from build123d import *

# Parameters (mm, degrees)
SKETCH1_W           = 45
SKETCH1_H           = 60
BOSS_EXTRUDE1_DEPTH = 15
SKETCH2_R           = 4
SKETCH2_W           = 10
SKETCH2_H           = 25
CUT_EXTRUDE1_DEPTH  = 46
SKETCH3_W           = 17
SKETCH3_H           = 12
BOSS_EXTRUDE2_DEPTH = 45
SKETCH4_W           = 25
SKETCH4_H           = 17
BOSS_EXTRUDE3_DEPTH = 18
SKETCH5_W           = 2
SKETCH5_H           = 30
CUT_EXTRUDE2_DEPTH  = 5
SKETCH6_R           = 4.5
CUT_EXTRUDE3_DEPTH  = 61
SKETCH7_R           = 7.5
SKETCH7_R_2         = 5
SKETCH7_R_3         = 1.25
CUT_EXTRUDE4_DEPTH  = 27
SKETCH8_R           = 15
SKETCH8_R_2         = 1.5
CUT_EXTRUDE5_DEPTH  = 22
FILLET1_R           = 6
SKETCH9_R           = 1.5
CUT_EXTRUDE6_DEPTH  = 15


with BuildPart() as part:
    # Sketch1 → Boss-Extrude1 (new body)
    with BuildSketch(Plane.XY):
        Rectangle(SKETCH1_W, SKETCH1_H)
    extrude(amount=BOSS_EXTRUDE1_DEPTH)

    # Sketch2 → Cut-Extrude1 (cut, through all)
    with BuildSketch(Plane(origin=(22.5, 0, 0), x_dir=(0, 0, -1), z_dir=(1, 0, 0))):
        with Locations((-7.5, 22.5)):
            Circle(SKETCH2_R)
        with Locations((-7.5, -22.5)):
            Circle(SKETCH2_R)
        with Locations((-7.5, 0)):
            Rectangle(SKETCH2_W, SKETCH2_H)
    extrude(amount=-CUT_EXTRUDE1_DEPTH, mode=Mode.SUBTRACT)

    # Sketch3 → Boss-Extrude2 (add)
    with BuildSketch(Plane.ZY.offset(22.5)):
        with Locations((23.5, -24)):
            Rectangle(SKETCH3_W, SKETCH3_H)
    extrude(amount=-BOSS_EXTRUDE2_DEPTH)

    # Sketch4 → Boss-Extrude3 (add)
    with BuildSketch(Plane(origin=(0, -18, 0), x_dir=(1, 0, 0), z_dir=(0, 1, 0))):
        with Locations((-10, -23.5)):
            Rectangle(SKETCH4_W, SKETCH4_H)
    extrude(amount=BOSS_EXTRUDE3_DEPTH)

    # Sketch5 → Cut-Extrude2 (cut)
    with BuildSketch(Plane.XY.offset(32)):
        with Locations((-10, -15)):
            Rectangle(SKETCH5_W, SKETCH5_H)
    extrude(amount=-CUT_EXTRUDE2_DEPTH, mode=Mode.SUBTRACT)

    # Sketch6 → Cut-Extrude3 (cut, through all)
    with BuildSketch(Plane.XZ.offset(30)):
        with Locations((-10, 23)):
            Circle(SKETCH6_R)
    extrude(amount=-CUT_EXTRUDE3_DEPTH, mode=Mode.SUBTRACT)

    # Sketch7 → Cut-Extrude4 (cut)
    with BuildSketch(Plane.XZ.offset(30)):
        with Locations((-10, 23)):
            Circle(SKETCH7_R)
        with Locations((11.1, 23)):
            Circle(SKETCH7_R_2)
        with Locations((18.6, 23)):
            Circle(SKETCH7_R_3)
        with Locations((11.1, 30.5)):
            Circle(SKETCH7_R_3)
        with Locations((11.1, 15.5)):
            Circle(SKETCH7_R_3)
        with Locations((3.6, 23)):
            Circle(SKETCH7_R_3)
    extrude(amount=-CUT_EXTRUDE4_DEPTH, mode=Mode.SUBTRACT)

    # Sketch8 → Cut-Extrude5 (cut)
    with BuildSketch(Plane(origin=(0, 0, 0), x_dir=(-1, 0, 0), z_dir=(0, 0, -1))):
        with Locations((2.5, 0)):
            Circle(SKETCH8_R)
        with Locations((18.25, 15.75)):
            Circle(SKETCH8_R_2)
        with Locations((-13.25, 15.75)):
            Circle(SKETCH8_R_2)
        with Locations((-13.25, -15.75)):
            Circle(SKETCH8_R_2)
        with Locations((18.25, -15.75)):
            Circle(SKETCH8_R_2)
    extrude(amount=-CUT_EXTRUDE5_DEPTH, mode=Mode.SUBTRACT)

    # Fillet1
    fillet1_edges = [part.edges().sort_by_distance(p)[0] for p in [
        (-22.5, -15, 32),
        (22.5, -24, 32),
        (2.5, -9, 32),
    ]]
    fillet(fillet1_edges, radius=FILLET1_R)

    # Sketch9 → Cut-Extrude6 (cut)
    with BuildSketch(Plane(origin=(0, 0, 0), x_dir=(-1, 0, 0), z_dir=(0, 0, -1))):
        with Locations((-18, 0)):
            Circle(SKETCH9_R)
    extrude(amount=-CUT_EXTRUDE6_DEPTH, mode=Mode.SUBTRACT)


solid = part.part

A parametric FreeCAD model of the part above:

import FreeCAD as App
import Part
import Sketcher
Q = App.Units.Quantity


def edges_at(feature, points):
    """Names of the edges that pass closest to the given points."""
    edges = feature.Shape.Edges
    near = lambda p: min(range(len(edges)), key=lambda i: edges[i].distToShape(Part.Vertex(*p))[0])
    return sorted({f"Edge{near(p) + 1}" for p in points})

doc = App.newDocument("Part")
body = doc.addObject("PartDesign::Body", "Body")

sketch1 = body.newObject("Sketcher::SketchObject", "Sketch")
sketch1.AttachmentSupport = (doc.getObject("XY_Plane"), [""])
sketch1.MapMode = "FlatFace"
sketch1.addGeometry(Part.LineSegment(App.Vector(-22.5, 30, 0), App.Vector(-22.5, -30, 0)), False)
sketch1.addGeometry(Part.LineSegment(App.Vector(-22.5, -30, 0), App.Vector(22.5, -30, 0)), False)
sketch1.addGeometry(Part.LineSegment(App.Vector(22.5, -30, 0), App.Vector(22.5, 30, 0)), False)
sketch1.addGeometry(Part.LineSegment(App.Vector(22.5, 30, 0), App.Vector(-22.5, 30, 0)), False)
sketch1.addConstraint(Sketcher.Constraint("Coincident", 0, 2, 1, 1))
sketch1.addConstraint(Sketcher.Constraint("Coincident", 1, 2, 2, 1))
sketch1.addConstraint(Sketcher.Constraint("Coincident", 2, 2, 3, 1))
sketch1.addConstraint(Sketcher.Constraint("Coincident", 3, 2, 0, 1))
sketch1.addConstraint(Sketcher.Constraint("Vertical", 0))
sketch1.addConstraint(Sketcher.Constraint("Horizontal", 1))
sketch1.addConstraint(Sketcher.Constraint("Vertical", 2))
sketch1.addConstraint(Sketcher.Constraint("Horizontal", 3))
sketch1.addConstraint(Sketcher.Constraint("Symmetric", 0, 2, 2, 2, -1, 1))
sketch1.addConstraint(Sketcher.Constraint("DistanceX", 1, 1, 1, 2, Q("45 mm")))
sketch1.addConstraint(Sketcher.Constraint("DistanceY", 0, 2, 0, 1, Q("60 mm")))
pad1 = body.newObject("PartDesign::Pad", "Pad")
pad1.Profile = sketch1
pad1.Length = 15

sketch2 = body.newObject("Sketcher::SketchObject", "Sketch001")
sketch2.AttachmentSupport = (doc.getObject("YZ_Plane"), [""])
sketch2.MapMode = "FlatFace"
sketch2.AttachmentOffset = App.Placement(App.Vector(0, 0, 22.5), App.Rotation())
sketch2.addGeometry(Part.Circle(App.Vector(22.5, 7.5, 0), App.Vector(0, 0, 1), 4), False)
sketch2.addGeometry(Part.Circle(App.Vector(-22.5, 7.5, 0), App.Vector(0, 0, 1), 4), False)
sketch2.addGeometry(Part.LineSegment(App.Vector(12.5, 12.5, 0), App.Vector(-12.5, 12.5, 0)), False)
sketch2.addGeometry(Part.LineSegment(App.Vector(-12.5, 12.5, 0), App.Vector(-12.5, 2.5, 0)), False)
sketch2.addGeometry(Part.LineSegment(App.Vector(-12.5, 2.5, 0), App.Vector(12.5, 2.5, 0)), False)
sketch2.addGeometry(Part.LineSegment(App.Vector(12.5, 2.5, 0), App.Vector(12.5, 12.5, 0)), False)
sketch2.addConstraint(Sketcher.Constraint("Coincident", 2, 2, 3, 1))
sketch2.addConstraint(Sketcher.Constraint("Coincident", 3, 2, 4, 1))
sketch2.addConstraint(Sketcher.Constraint("Coincident", 4, 2, 5, 1))
sketch2.addConstraint(Sketcher.Constraint("Coincident", 5, 2, 2, 1))
sketch2.addConstraint(Sketcher.Constraint("Horizontal", 2))
sketch2.addConstraint(Sketcher.Constraint("Vertical", 3))
sketch2.addConstraint(Sketcher.Constraint("Horizontal", 4))
sketch2.addConstraint(Sketcher.Constraint("Vertical", 5))
sketch2.addConstraint(Sketcher.Constraint("Equal", 0, 1))
sketch2.addConstraint(Sketcher.Constraint("Symmetric", 0, 3, 1, 3, -2))
sketch2.addConstraint(Sketcher.Constraint("Diameter", 0, Q("8 mm")))
sketch2.addConstraint(Sketcher.Constraint("DistanceX", 2, 2, 2, 1, Q("25 mm")))
sketch2.addConstraint(Sketcher.Constraint("DistanceY", 3, 2, 3, 1, Q("10 mm")))
sketch2.addConstraint(Sketcher.Constraint("DistanceX", 1, 3, 0, 3, Q("45 mm")))
sketch2.addConstraint(Sketcher.Constraint("DistanceX", 1, 3, 2, 2, Q("10 mm")))
sketch2.addConstraint(Sketcher.Constraint("DistanceY", 1, 3, 2, 2, Q("5 mm")))
sketch2.addConstraint(Sketcher.Constraint("DistanceY", -1, 1, 0, 3, Q("7.5 mm")))
pocket1 = body.newObject("PartDesign::Pocket", "Pocket")
pocket1.Profile = sketch2
pocket1.Type = "ThroughAll"

sketch3 = body.newObject("Sketcher::SketchObject", "Sketch002")
sketch3.AttachmentSupport = (doc.getObject("YZ_Plane"), [""])
sketch3.MapMode = "FlatFace"
sketch3.AttachmentOffset = App.Placement(App.Vector(0, 0, -22.5), App.Rotation())
sketch3.addGeometry(Part.LineSegment(App.Vector(-18, 15, 0), App.Vector(-30, 15, 0)), False)
sketch3.addGeometry(Part.LineSegment(App.Vector(-30, 15, 0), App.Vector(-30, 32, 0)), False)
sketch3.addGeometry(Part.LineSegment(App.Vector(-30, 32, 0), App.Vector(-18, 32, 0)), False)
sketch3.addGeometry(Part.LineSegment(App.Vector(-18, 32, 0), App.Vector(-18, 15, 0)), False)
sketch3.addConstraint(Sketcher.Constraint("Coincident", 0, 2, 1, 1))
sketch3.addConstraint(Sketcher.Constraint("Coincident", 1, 2, 2, 1))
sketch3.addConstraint(Sketcher.Constraint("Coincident", 2, 2, 3, 1))
sketch3.addConstraint(Sketcher.Constraint("Coincident", 3, 2, 0, 1))
sketch3.addConstraint(Sketcher.Constraint("Horizontal", 0))
sketch3.addConstraint(Sketcher.Constraint("Vertical", 1))
sketch3.addConstraint(Sketcher.Constraint("Horizontal", 2))
sketch3.addConstraint(Sketcher.Constraint("Vertical", 3))
sketch3.addConstraint(Sketcher.Constraint("DistanceX", 0, 2, 0, 1, Q("12 mm")))
sketch3.addConstraint(Sketcher.Constraint("DistanceY", 1, 1, 1, 2, Q("17 mm")))
sketch3.addConstraint(Sketcher.Constraint("DistanceX", 0, 2, -1, 1, Q("30 mm")))
sketch3.addConstraint(Sketcher.Constraint("DistanceY", -1, 1, 0, 2, Q("15 mm")))
pad2 = body.newObject("PartDesign::Pad", "Pad001")
pad2.Profile = sketch3
pad2.Length = 45

sketch4 = body.newObject("Sketcher::SketchObject", "Sketch003")
sketch4.AttachmentSupport = (doc.getObject("XZ_Plane"), [""])
sketch4.MapMode = "FlatFace"
sketch4.AttachmentOffset = App.Placement(App.Vector(0, 0, 18), App.Rotation())
sketch4.addGeometry(Part.LineSegment(App.Vector(-22.5, 15, 0), App.Vector(-22.5, 32, 0)), False)
sketch4.addGeometry(Part.LineSegment(App.Vector(-22.5, 32, 0), App.Vector(2.5, 32, 0)), False)
sketch4.addGeometry(Part.LineSegment(App.Vector(2.5, 32, 0), App.Vector(2.5, 15, 0)), False)
sketch4.addGeometry(Part.LineSegment(App.Vector(2.5, 15, 0), App.Vector(-22.5, 15, 0)), False)
sketch4.addConstraint(Sketcher.Constraint("Coincident", 0, 2, 1, 1))
sketch4.addConstraint(Sketcher.Constraint("Coincident", 1, 2, 2, 1))
sketch4.addConstraint(Sketcher.Constraint("Coincident", 2, 2, 3, 1))
sketch4.addConstraint(Sketcher.Constraint("Coincident", 3, 2, 0, 1))
sketch4.addConstraint(Sketcher.Constraint("Vertical", 0))
sketch4.addConstraint(Sketcher.Constraint("Horizontal", 1))
sketch4.addConstraint(Sketcher.Constraint("Vertical", 2))
sketch4.addConstraint(Sketcher.Constraint("Horizontal", 3))
sketch4.addConstraint(Sketcher.Constraint("DistanceX", 1, 1, 1, 2, Q("25 mm")))
sketch4.addConstraint(Sketcher.Constraint("DistanceY", 0, 1, 0, 2, Q("17 mm")))
sketch4.addConstraint(Sketcher.Constraint("DistanceY", -1, 1, 0, 2, Q("32 mm")))
sketch4.addConstraint(Sketcher.Constraint("DistanceX", 0, 2, -1, 1, Q("22.5 mm")))
pad3 = body.newObject("PartDesign::Pad", "Pad002")
pad3.Profile = sketch4
pad3.Length = 18
pad3.Reversed = True

sketch5 = body.newObject("Sketcher::SketchObject", "Sketch004")
sketch5.AttachmentSupport = (doc.getObject("XY_Plane"), [""])
sketch5.MapMode = "FlatFace"
sketch5.AttachmentOffset = App.Placement(App.Vector(0, 0, 32), App.Rotation())
sketch5.addGeometry(Part.LineSegment(App.Vector(-11, 0, 0), App.Vector(-11, -30, 0)), False)
sketch5.addGeometry(Part.LineSegment(App.Vector(-11, -30, 0), App.Vector(-9, -30, 0)), False)
sketch5.addGeometry(Part.LineSegment(App.Vector(-9, -30, 0), App.Vector(-9, 0, 0)), False)
sketch5.addGeometry(Part.LineSegment(App.Vector(-9, 0, 0), App.Vector(-11, 0, 0)), False)
sketch5.addConstraint(Sketcher.Constraint("Coincident", 0, 2, 1, 1))
sketch5.addConstraint(Sketcher.Constraint("Coincident", 1, 2, 2, 1))
sketch5.addConstraint(Sketcher.Constraint("Coincident", 2, 2, 3, 1))
sketch5.addConstraint(Sketcher.Constraint("Coincident", 3, 2, 0, 1))
sketch5.addConstraint(Sketcher.Constraint("Vertical", 0))
sketch5.addConstraint(Sketcher.Constraint("Horizontal", 1))
sketch5.addConstraint(Sketcher.Constraint("Vertical", 2))
sketch5.addConstraint(Sketcher.Constraint("Horizontal", 3))
sketch5.addConstraint(Sketcher.Constraint("PointOnObject", 2, 2, -1))
sketch5.addConstraint(Sketcher.Constraint("DistanceX", 1, 1, 1, 2, Q("2 mm")))
sketch5.addConstraint(Sketcher.Constraint("DistanceY", 0, 2, 0, 1, Q("30 mm")))
sketch5.addConstraint(Sketcher.Constraint("DistanceX", 0, 2, -1, 1, Q("11 mm")))
pocket2 = body.newObject("PartDesign::Pocket", "Pocket001")
pocket2.Profile = sketch5
pocket2.Length = 5

sketch6 = body.newObject("Sketcher::SketchObject", "Sketch005")
sketch6.AttachmentSupport = (doc.getObject("XZ_Plane"), [""])
sketch6.MapMode = "FlatFace"
sketch6.AttachmentOffset = App.Placement(App.Vector(0, 0, 30), App.Rotation())
sketch6.addGeometry(Part.Circle(App.Vector(-10, 23, 0), App.Vector(0, 0, 1), 4.5), False)
sketch6.addConstraint(Sketcher.Constraint("Diameter", 0, Q("9 mm")))
sketch6.addConstraint(Sketcher.Constraint("DistanceX", 0, 3, -1, 1, Q("10 mm")))
sketch6.addConstraint(Sketcher.Constraint("DistanceY", -1, 1, 0, 3, Q("23 mm")))
pocket3 = body.newObject("PartDesign::Pocket", "Pocket002")
pocket3.Profile = sketch6
pocket3.Type = "ThroughAll"

sketch7 = body.newObject("Sketcher::SketchObject", "Sketch006")
sketch7.AttachmentSupport = (doc.getObject("XZ_Plane"), [""])
sketch7.MapMode = "FlatFace"
sketch7.AttachmentOffset = App.Placement(App.Vector(0, 0, 30), App.Rotation())
sketch7.addGeometry(Part.Circle(App.Vector(-10, 23, 0), App.Vector(0, 0, 1), 7.5), False)
sketch7.addGeometry(Part.Circle(App.Vector(11.1, 23, 0), App.Vector(0, 0, 1), 5), False)
sketch7.addGeometry(Part.Circle(App.Vector(18.6, 23, 0), App.Vector(0, 0, 1), 1.25), False)
sketch7.addGeometry(Part.Circle(App.Vector(11.1, 30.5, 0), App.Vector(0, 0, 1), 1.25), False)
sketch7.addGeometry(Part.Circle(App.Vector(11.1, 15.5, 0), App.Vector(0, 0, 1), 1.25), False)
sketch7.addGeometry(Part.Circle(App.Vector(3.6, 23, 0), App.Vector(0, 0, 1), 1.25), False)
sketch7.addConstraint(Sketcher.Constraint("Equal", 2, 3))
sketch7.addConstraint(Sketcher.Constraint("Equal", 3, 4))
sketch7.addConstraint(Sketcher.Constraint("Equal", 4, 5))
sketch7.addConstraint(Sketcher.Constraint("Horizontal", 0, 3, 1, 3))
sketch7.addConstraint(Sketcher.Constraint("Horizontal", 1, 3, 2, 3))
sketch7.addConstraint(Sketcher.Constraint("Horizontal", 2, 3, 5, 3))
sketch7.addConstraint(Sketcher.Constraint("Vertical", 1, 3, 3, 3))
sketch7.addConstraint(Sketcher.Constraint("Vertical", 3, 3, 4, 3))
sketch7.addConstraint(Sketcher.Constraint("Diameter", 0, Q("15 mm")))
sketch7.addConstraint(Sketcher.Constraint("Diameter", 1, Q("10 mm")))
sketch7.addConstraint(Sketcher.Constraint("Diameter", 2, Q("2.5 mm")))
sketch7.addConstraint(Sketcher.Constraint("DistanceX", 0, 3, -1, 1, Q("10 mm")))
sketch7.addConstraint(Sketcher.Constraint("DistanceY", -1, 1, 0, 3, Q("23 mm")))
sketch7.addConstraint(Sketcher.Constraint("DistanceY", 4, 3, 3, 3, Q("15 mm")))
sketch7.addConstraint(Sketcher.Constraint("DistanceX", 5, 3, 2, 3, Q("15 mm")))
sketch7.addConstraint(Sketcher.Constraint("DistanceX", -1, 1, 1, 3, Q("11.1 mm")))
sketch7.addConstraint(Sketcher.Constraint("DistanceX", -1, 1, 2, 3, Q("18.6 mm")))
sketch7.addConstraint(Sketcher.Constraint("DistanceY", -1, 1, 3, 3, Q("30.5 mm")))
pocket4 = body.newObject("PartDesign::Pocket", "Pocket003")
pocket4.Profile = sketch7
pocket4.Length = 27

sketch8 = body.newObject("Sketcher::SketchObject", "Sketch007")
sketch8.AttachmentSupport = (doc.getObject("XY_Plane"), [""])
sketch8.MapMode = "FlatFace"
sketch8.addGeometry(Part.Circle(App.Vector(-2.5, 0, 0), App.Vector(0, 0, 1), 15), False)
sketch8.addGeometry(Part.Circle(App.Vector(-18.25, 15.75, 0), App.Vector(0, 0, 1), 1.5), False)
sketch8.addGeometry(Part.Circle(App.Vector(13.25, 15.75, 0), App.Vector(0, 0, 1), 1.5), False)
sketch8.addGeometry(Part.Circle(App.Vector(13.25, -15.75, 0), App.Vector(0, 0, 1), 1.5), False)
sketch8.addGeometry(Part.Circle(App.Vector(-18.25, -15.75, 0), App.Vector(0, 0, 1), 1.5), False)
sketch8.addConstraint(Sketcher.Constraint("Equal", 1, 2))
sketch8.addConstraint(Sketcher.Constraint("Equal", 2, 3))
sketch8.addConstraint(Sketcher.Constraint("Equal", 3, 4))
sketch8.addConstraint(Sketcher.Constraint("Symmetric", 2, 3, 3, 3, -1))
sketch8.addConstraint(Sketcher.Constraint("Symmetric", 1, 3, 4, 3, -1))
sketch8.addConstraint(Sketcher.Constraint("PointOnObject", 0, 3, -1))
sketch8.addConstraint(Sketcher.Constraint("Horizontal", 1, 3, 2, 3))
sketch8.addConstraint(Sketcher.Constraint("Diameter", 0, Q("30 mm")))
sketch8.addConstraint(Sketcher.Constraint("Diameter", 1, Q("3 mm")))
sketch8.addConstraint(Sketcher.Constraint("DistanceX", 0, 3, -1, 1, Q("2.5 mm")))
sketch8.addConstraint(Sketcher.Constraint("DistanceX", 1, 3, 2, 3, Q("31.5 mm")))
sketch8.addConstraint(Sketcher.Constraint("DistanceY", 3, 3, 2, 3, Q("31.5 mm")))
sketch8.addConstraint(Sketcher.Constraint("DistanceX", 1, 3, -1, 1, Q("18.25 mm")))
pocket5 = body.newObject("PartDesign::Pocket", "Pocket004")
pocket5.Profile = sketch8
pocket5.Length = 22
pocket5.Reversed = True
doc.recompute()

fillet = body.newObject("PartDesign::Fillet", "Fillet")
fillet.Base = (pocket5, edges_at(pocket5, [(-22.5, -15, 32), (22.5, -24, 32), (2.5, -9, 32)]))
fillet.Radius = 6

sketch9 = body.newObject("Sketcher::SketchObject", "Sketch008")
sketch9.AttachmentSupport = (doc.getObject("XY_Plane"), [""])
sketch9.MapMode = "FlatFace"
sketch9.addGeometry(Part.Circle(App.Vector(18, 0, 0), App.Vector(0, 0, 1), 1.5), False)
sketch9.addConstraint(Sketcher.Constraint("PointOnObject", 0, 3, -1))
sketch9.addConstraint(Sketcher.Constraint("Diameter", 0, Q("3 mm")))
sketch9.addConstraint(Sketcher.Constraint("DistanceX", -1, 1, 0, 3, Q("18 mm")))
pocket6 = body.newObject("PartDesign::Pocket", "Pocket005")
pocket6.Profile = sketch9
pocket6.Length = 15
pocket6.Reversed = True

doc.recompute()
